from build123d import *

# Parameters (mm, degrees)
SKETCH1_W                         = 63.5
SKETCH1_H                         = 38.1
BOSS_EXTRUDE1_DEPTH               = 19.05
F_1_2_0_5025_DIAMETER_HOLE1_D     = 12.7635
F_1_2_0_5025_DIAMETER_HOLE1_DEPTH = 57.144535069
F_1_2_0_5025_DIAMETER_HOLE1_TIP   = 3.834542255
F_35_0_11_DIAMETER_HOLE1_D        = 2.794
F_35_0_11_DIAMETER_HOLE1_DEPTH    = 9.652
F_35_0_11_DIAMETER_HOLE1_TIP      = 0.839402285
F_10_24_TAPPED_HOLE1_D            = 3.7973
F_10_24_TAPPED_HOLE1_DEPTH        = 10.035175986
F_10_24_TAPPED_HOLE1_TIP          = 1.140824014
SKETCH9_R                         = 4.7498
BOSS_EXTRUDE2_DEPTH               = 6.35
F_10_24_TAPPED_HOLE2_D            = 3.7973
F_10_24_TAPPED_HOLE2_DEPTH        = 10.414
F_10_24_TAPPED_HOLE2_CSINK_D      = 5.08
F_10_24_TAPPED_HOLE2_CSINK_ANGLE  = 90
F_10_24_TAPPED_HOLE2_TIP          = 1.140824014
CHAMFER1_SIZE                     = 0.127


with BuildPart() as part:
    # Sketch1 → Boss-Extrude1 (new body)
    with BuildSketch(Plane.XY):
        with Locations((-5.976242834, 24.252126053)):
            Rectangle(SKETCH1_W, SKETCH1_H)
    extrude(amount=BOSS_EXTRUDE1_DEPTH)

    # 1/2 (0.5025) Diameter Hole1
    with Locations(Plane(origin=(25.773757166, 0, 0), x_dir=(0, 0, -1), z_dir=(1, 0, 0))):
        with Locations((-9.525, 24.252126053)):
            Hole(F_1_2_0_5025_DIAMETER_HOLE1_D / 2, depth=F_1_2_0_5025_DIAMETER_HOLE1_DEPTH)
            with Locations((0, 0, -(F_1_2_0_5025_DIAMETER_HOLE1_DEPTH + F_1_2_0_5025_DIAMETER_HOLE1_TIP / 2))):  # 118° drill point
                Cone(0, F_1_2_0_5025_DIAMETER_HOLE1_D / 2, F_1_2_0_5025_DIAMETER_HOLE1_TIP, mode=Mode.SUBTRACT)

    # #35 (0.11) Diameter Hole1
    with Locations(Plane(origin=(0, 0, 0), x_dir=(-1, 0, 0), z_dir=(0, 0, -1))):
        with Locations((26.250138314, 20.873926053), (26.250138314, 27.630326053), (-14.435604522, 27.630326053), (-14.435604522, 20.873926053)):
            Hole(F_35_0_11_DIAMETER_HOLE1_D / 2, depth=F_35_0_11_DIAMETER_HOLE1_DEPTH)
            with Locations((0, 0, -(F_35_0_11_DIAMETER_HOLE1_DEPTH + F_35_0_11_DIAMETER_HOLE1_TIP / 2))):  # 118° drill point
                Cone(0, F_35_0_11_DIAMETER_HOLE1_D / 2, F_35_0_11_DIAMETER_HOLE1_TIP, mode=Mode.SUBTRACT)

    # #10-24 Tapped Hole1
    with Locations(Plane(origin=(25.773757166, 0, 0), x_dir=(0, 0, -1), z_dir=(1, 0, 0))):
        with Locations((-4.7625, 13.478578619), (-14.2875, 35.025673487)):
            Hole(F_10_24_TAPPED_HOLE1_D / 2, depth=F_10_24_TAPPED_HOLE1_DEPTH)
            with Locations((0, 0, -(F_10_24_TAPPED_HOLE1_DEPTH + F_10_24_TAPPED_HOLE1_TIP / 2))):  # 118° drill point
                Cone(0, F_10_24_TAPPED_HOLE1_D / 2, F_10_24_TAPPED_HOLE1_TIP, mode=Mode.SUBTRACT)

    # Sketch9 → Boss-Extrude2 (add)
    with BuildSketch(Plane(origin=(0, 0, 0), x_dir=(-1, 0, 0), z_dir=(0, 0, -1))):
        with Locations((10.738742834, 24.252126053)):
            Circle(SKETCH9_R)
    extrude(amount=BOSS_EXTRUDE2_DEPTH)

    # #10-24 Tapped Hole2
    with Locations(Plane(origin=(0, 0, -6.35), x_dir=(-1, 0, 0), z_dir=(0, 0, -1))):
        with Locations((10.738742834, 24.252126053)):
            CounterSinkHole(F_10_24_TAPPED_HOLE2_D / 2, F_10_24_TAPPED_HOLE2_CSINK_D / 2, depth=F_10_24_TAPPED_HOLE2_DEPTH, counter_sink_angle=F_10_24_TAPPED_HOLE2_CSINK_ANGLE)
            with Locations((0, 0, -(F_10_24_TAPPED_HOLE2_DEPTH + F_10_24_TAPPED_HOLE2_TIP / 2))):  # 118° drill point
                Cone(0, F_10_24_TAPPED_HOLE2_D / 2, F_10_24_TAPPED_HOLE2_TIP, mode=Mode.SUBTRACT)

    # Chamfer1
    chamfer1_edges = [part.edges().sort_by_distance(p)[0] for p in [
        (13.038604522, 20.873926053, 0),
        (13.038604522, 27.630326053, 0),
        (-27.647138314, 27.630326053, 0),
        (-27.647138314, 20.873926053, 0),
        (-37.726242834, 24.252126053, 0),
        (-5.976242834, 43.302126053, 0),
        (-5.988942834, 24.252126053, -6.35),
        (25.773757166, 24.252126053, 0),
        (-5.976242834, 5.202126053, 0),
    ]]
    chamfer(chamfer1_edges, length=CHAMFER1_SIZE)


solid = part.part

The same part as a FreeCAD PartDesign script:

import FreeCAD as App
import Part
import Sketcher
from FreeCAD import Vector
Q = App.Units.Quantity


def edges_at(feature, points):
    """Names of the edges that pass closest to the given points."""
    edges = feature.Shape.Edges
    near = lambda p: min(range(len(edges)), key=lambda i: edges[i].distToShape(Part.Vertex(*p))[0])
    return sorted({f"Edge{near(p) + 1}" for p in points})

doc = App.newDocument("Part")
body = doc.addObject("PartDesign::Body", "Body")

# Sketch on XY plane
sketch1 = body.newObject("Sketcher::SketchObject", "Sketch")
sketch1.AttachmentSupport = (doc.getObject("XY_Plane"), [""])
sketch1.MapMode = "FlatFace"
sketch1.addGeometry([
    Part.LineSegment(Vector(-38, 43, 0), Vector(-38, 5, 0)),
    Part.LineSegment(Vector(-38, 5, 0), Vector(26, 5, 0)),
    Part.LineSegment(Vector(26, 5, 0), Vector(26, 43, 0)),
    Part.LineSegment(Vector(26, 43, 0), Vector(-38, 43, 0)),
], False)
sketch1.addConstraint([
    Sketcher.Constraint("Coincident", 0, 2, 1, 1),
    Sketcher.Constraint("Coincident", 1, 2, 2, 1),
    Sketcher.Constraint("Coincident", 2, 2, 3, 1),
    Sketcher.Constraint("Coincident", 3, 2, 0, 1),
    Sketcher.Constraint("Vertical", 0),
    Sketcher.Constraint("Horizontal", 1),
    Sketcher.Constraint("Vertical", 2),
    Sketcher.Constraint("Horizontal", 3),
    Sketcher.Constraint("DistanceX", 1, 1, 1, 2, Q("2.5 in")),
    Sketcher.Constraint("DistanceY", 0, 2, 0, 1, Q("1.5 in")),
    Sketcher.Constraint("DistanceX", 0, 2, -1, 1, 37.726243),
    Sketcher.Constraint("DistanceY", -1, 1, 0, 2, 5.202126),
])
pad1 = body.newObject("PartDesign::Pad", "Pad")
pad1.Profile = sketch1
pad1.Length = Q("0.75 in")

# Sketch on YZ plane
sketch2 = body.newObject("Sketcher::SketchObject", "Sketch001")
sketch2.AttachmentSupport = (doc.getObject("YZ_Plane"), [""])
sketch2.MapMode = "FlatFace"
sketch2.AttachmentOffset = App.Placement(Vector(0, 0, 25.773757), App.Rotation())
sketch2.addGeometry(Part.Circle(Vector(24, 10, 0), Vector(0, 0, 1), 6), False)
sketch2.addConstraint([
    Sketcher.Constraint("Diameter", 0, Q("0.5025 in")),
    Sketcher.Constraint("DistanceY", -1, 1, 0, 3, Q("0.375 in")),
    Sketcher.Constraint("DistanceX", -1, 1, 0, 3, 24.252126),
])
doc.recompute()
hole = body.newObject("PartDesign::Hole", "Hole")
hole.Profile = sketch2
hole.ThreadType = "None"
hole.Diameter = Q("0.5025 in")
hole.DepthType = "Dimension"
hole.Depth = 57.144535
hole.DrillPoint = "Angled"
hole.DrillPointAngle = 118

# Sketch on XY plane
sketch3 = body.newObject("Sketcher::SketchObject", "Sketch002")
sketch3.AttachmentSupport = (doc.getObject("XY_Plane"), [""])
sketch3.MapMode = "FlatFace"
sketch3.addGeometry([
    Part.Circle(Vector(-26.3, 20.9, 0), Vector(0, 0, 1), 1.4),
    Part.Circle(Vector(-26.3, 27.6, 0), Vector(0, 0, 1), 1.4),
    Part.Circle(Vector(14.4, 27.6, 0), Vector(0, 0, 1), 1.4),
    Part.Circle(Vector(14.4, 20.9, 0), Vector(0, 0, 1), 1.4),
], False)
sketch3.addConstraint([
    Sketcher.Constraint("Equal", 0, 1),
    Sketcher.Constraint("Equal", 1, 2),
    Sketcher.Constraint("Equal", 2, 3),
    Sketcher.Constraint("Horizontal", 1, 3, 2, 3),
    Sketcher.Constraint("Horizontal", 0, 3, 3, 3),
    Sketcher.Constraint("Vertical", 0, 3, 1, 3),
    Sketcher.Constraint("Vertical", 2, 3, 3, 3),
    Sketcher.Constraint("Diameter", 0, Q("0.11 in")),
    Sketcher.Constraint("DistanceY", 0, 3, 1, 3, Q("0.266 in")),
    Sketcher.Constraint("DistanceX", 0, 3, -1, 1, 26.250138),
    Sketcher.Constraint("DistanceY", -1, 1, 0, 3, 20.873926),
    Sketcher.Constraint("DistanceX", -1, 1, 2, 3, 14.435605),
])
doc.recompute()
hole2 = body.newObject("PartDesign::Hole", "Hole001")
hole2.Profile = sketch3
hole2.ThreadType = "None"
hole2.Diameter = Q("0.11 in")
hole2.DepthType = "Dimension"
hole2.Depth = Q("0.38 in")
hole2.DrillPoint = "Angled"
hole2.DrillPointAngle = 118
hole2.Reversed = True

# Sketch on YZ plane
sketch4 = body.newObject("Sketcher::SketchObject", "Sketch003")
sketch4.AttachmentSupport = (doc.getObject("YZ_Plane"), [""])
sketch4.MapMode = "FlatFace"
sketch4.AttachmentOffset = App.Placement(Vector(0, 0, 25.773757), App.Rotation())
sketch4.addGeometry([
    Part.Circle(Vector(13.5, 4.8, 0), Vector(0, 0, 1), 1.9),
    Part.Circle(Vector(35, 14.3, 0), Vector(0, 0, 1), 1.9),
], False)
sketch4.addConstraint([
    Sketcher.Constraint("Equal", 0, 1),
    Sketcher.Constraint("Diameter", 0, Q("0.1495 in")),
    Sketcher.Constraint("DistanceY", -1, 1, 0, 3, Q("0.1875 in")),
    Sketcher.Constraint("DistanceY", -1, 1, 1, 3, Q("0.5625 in")),
    Sketcher.Constraint("DistanceX", -1, 1, 0, 3, 13.478579),
    Sketcher.Constraint("DistanceX", -1, 1, 1, 3, 35.025673),
])
doc.recompute()
hole3 = body.newObject("PartDesign::Hole", "Hole002")
hole3.Profile = sketch4
hole3.ThreadType = "None"
hole3.Diameter = Q("0.1495 in")
hole3.DepthType = "Dimension"
hole3.Depth = 10.035176
hole3.DrillPoint = "Angled"
hole3.DrillPointAngle = 118

# Sketch on XY plane
sketch5 = body.newObject("Sketcher::SketchObject", "Sketch004")
sketch5.AttachmentSupport = (doc.getObject("XY_Plane"), [""])
sketch5.MapMode = "FlatFace"
sketch5.addGeometry(Part.Circle(Vector(-10.7, 24.3, 0), Vector(0, 0, 1), 4.7), False)
sketch5.addConstraint([
    Sketcher.Constraint("Diameter", 0, Q("0.374 in")),
    Sketcher.Constraint("DistanceX", 0, 3, -1, 1, 10.738743),
    Sketcher.Constraint("DistanceY", -1, 1, 0, 3, 24.252126),
])
pad2 = body.newObject("PartDesign::Pad", "Pad001")
pad2.Profile = sketch5
pad2.Length = Q("0.25 in")
pad2.Reversed = True

# Sketch on XY plane
sketch6 = body.newObject("Sketcher::SketchObject", "Sketch005")
sketch6.AttachmentSupport = (doc.getObject("XY_Plane"), [""])
sketch6.MapMode = "FlatFace"
sketch6.AttachmentOffset = App.Placement(Vector(0, 0, -0.25 * 25.4), App.Rotation())
sketch6.addGeometry(Part.Circle(Vector(-10.7, 24.3, 0), Vector(0, 0, 1), 1.9), False)
sketch6.addConstraint([
    Sketcher.Constraint("Diameter", 0, Q("0.1495 in")),
    Sketcher.Constraint("DistanceX", 0, 3, -1, 1, 10.738743),
    Sketcher.Constraint("DistanceY", -1, 1, 0, 3, 24.252126),
])
doc.recompute()
hole4 = body.newObject("PartDesign::Hole", "Hole003")
hole4.Profile = sketch6
hole4.ThreadType = "None"
hole4.Diameter = Q("0.1495 in")
hole4.DepthType = "Dimension"
hole4.Depth = Q("0.41 in")
hole4.DrillPoint = "Angled"
hole4.DrillPointAngle = 118
hole4.HoleCutType = "Countersink"
hole4.HoleCutDiameter = Q("0.2 in")
hole4.HoleCutCountersinkAngle = 90
hole4.Reversed = True
doc.recompute()

chamfer = body.newObject("PartDesign::Chamfer", "Chamfer")
chamfer.Base = (hole4, edges_at(hole4, [
    (13.039, 20.874, 0),
    (13.039, 27.63, 0),
    (-27.647, 27.63, 0),
    (-27.647, 20.874, 0),
    (-37.726, 24.252, 0),
    (-5.976, 43.302, 0),
    (-5.989, 24.252, -6.35),
    (25.774, 24.252, 0),
    (-5.976, 5.202, 0),
]))
chamfer.Size = Q("0.005 in")

doc.recompute()
